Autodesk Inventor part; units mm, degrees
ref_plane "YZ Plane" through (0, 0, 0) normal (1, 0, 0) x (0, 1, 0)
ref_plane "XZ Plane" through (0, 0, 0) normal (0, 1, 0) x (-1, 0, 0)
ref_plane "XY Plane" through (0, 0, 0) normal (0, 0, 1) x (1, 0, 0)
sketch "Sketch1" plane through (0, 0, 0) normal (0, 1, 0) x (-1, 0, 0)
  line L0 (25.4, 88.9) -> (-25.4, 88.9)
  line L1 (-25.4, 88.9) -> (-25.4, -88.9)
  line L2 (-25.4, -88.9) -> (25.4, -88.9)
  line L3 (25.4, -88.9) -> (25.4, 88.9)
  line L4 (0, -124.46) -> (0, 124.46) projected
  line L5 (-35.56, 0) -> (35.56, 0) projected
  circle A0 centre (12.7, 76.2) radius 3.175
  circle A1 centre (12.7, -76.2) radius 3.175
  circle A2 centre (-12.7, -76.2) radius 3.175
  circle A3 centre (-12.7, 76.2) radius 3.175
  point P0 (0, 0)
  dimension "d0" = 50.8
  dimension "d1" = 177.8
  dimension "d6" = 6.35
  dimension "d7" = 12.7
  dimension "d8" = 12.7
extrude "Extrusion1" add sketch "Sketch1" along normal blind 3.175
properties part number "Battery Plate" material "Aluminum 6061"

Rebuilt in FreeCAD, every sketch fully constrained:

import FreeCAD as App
import Part
import Sketcher

V = App.Vector
Q = App.Units.Quantity


def add_polygon(sketch, points):
    """Adds a closed chain of lines whose ends are joined by coincident constraints."""
    first, n = sketch.GeometryCount, len(points)
    for a, b in zip(points, points[1:] + points[:1]):
        sketch.addGeometry(Part.LineSegment(App.Vector(*a, 0), App.Vector(*b, 0)), False)
    for i in range(n):
        sketch.addConstraint(Sketcher.Constraint("Coincident", first + i, 2, first + (i + 1) % n, 1))

doc = App.newDocument("Part")
body = doc.addObject("PartDesign::Body", "Body")

sketch1 = doc.addObject("Sketcher::SketchObject", "Sketch")
body.addObject(sketch1)
sketch1.AttachmentSupport = (doc.XZ_Plane, [""])
sketch1.MapMode = "FlatFace"
add_polygon(sketch1, [(-25.4, 88.9), (25.4, 88.9), (25.4, -88.9), (-25.4, -88.9)])
sketch1.addGeometry(Part.Circle(V(-12.7, 76.2, 0), V(0, 0, 1), 3.2), False)
sketch1.addGeometry(Part.Circle(V(-12.7, -76.2, 0), V(0, 0, 1), 3.2), False)
sketch1.addGeometry(Part.Circle(V(12.7, 76.2, 0), V(0, 0, 1), 3.2), False)
sketch1.addGeometry(Part.Circle(V(12.7, -76.2, 0), V(0, 0, 1), 3.2), False)
sketch1.addConstraint([
    Sketcher.Constraint("Horizontal", 0),
    Sketcher.Constraint("Vertical", 1),
    Sketcher.Constraint("Horizontal", 2),
    Sketcher.Constraint("Vertical", 3),
    Sketcher.Constraint("Equal", 4, 5),
    Sketcher.Constraint("Equal", 5, 6),
    Sketcher.Constraint("Equal", 6, 7),
    Sketcher.Constraint("Symmetric", 5, 3, 6, 3, -1, 1),
    Sketcher.Constraint("Symmetric", 4, 3, 7, 3, -1, 1),
    Sketcher.Constraint("Symmetric", 0, 2, 2, 2, -1, 1),
    Sketcher.Constraint("Symmetric", 4, 3, 6, 3, -2),
    Sketcher.Constraint("Diameter", 4, Q("0.25 in")),
    Sketcher.Constraint("DistanceX", 0, 1, 0, 2, Q("2 in")),
    Sketcher.Constraint("DistanceY", 1, 2, 1, 1, Q("7 in")),
    Sketcher.Constraint("DistanceX", 4, 3, -1, 1, Q("0.5 in")),
    Sketcher.Constraint("DistanceY", 6, 3, 0, 2, Q("0.5 in")),
])
pad1 = doc.addObject("PartDesign::Pad", "Pad")
body.addObject(pad1)
pad1.Profile = sketch1
pad1.Length = Q("0.125 in")
pad1.Reversed = True

doc.recompute()
